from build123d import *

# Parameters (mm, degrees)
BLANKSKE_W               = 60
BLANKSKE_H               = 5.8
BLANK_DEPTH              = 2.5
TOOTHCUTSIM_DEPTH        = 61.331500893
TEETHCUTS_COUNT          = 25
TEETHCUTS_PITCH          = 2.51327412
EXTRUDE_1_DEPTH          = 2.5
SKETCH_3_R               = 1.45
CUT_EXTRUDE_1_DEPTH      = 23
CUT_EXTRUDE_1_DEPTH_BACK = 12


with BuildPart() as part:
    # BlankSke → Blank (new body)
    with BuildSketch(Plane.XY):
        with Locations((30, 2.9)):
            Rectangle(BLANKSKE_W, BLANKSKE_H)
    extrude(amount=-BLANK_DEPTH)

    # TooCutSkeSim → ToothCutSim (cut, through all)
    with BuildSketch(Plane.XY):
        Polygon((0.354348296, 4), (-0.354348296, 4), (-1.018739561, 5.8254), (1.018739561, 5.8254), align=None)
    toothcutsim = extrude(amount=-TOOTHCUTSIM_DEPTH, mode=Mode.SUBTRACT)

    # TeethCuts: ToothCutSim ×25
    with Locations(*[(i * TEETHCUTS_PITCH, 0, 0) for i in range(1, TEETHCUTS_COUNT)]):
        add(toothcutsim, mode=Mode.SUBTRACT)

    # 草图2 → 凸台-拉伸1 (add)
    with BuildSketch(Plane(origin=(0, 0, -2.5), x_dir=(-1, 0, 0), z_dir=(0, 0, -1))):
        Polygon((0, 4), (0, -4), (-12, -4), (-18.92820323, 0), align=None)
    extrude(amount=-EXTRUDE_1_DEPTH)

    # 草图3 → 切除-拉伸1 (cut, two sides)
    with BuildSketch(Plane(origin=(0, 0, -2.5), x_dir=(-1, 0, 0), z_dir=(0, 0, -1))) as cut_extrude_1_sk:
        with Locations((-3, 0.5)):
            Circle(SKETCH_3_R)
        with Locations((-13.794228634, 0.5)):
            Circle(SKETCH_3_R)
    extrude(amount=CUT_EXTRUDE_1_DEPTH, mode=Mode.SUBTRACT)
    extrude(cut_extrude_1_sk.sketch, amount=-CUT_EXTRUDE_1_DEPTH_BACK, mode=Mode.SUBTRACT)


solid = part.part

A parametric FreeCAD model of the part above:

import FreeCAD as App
import Part
import Sketcher
from FreeCAD import Vector
Q = App.Units.Quantity

doc = App.newDocument("Part")
params = doc.addObject("Spreadsheet::Sheet", "Params")
for row, (alias, value) in enumerate([
    ("sketch1_width", "60 mm"),
    ("sketch1_height", "5.8 mm"),
    ("pad1_length", "2.5 mm"),
    ("linearpattern_pitch", "2.513274 mm"),
    ("sketch3_width", "12 mm"),
    ("sketch3_height", "8 mm"),
    ("pad2_length", "2.5 mm"),
    ("sketch4_diameter", "2.9 mm"),
], start=1):
    params.set(f"A{row}", alias)
    params.set(f"B{row}", "=" + value)
    params.setAlias(f"B{row}", alias)

body = doc.addObject("PartDesign::Body", "Body")

sketch1 = body.newObject("Sketcher::SketchObject", "Sketch")
sketch1.AttachmentSupport = (doc.getObject("XY_Plane"), [""])
sketch1.MapMode = "FlatFace"
sketch1.addGeometry(Part.LineSegment(Vector(0, 6, 0), Vector(0, 0, 0)), False)
sketch1.addGeometry(Part.LineSegment(Vector(0, 0, 0), Vector(60, 0, 0)), False)
sketch1.addGeometry(Part.LineSegment(Vector(60, 0, 0), Vector(60, 6, 0)), False)
sketch1.addGeometry(Part.LineSegment(Vector(60, 6, 0), Vector(0, 6, 0)), False)
sketch1.addConstraint(Sketcher.Constraint("Coincident", 0, 2, 1, 1))
sketch1.addConstraint(Sketcher.Constraint("Coincident", 1, 2, 2, 1))
sketch1.addConstraint(Sketcher.Constraint("Coincident", 2, 2, 3, 1))
sketch1.addConstraint(Sketcher.Constraint("Coincident", 3, 2, 0, 1))
sketch1.addConstraint(Sketcher.Constraint("Vertical", 0))
sketch1.addConstraint(Sketcher.Constraint("Horizontal", 1))
sketch1.addConstraint(Sketcher.Constraint("Vertical", 2))
sketch1.addConstraint(Sketcher.Constraint("Horizontal", 3))
sketch1.addConstraint(Sketcher.Constraint("Coincident", 0, 2, -1, 1))
sketch1.addConstraint(Sketcher.Constraint("DistanceX", 1, 1, 1, 2, 60.0))
sketch1.addConstraint(Sketcher.Constraint("DistanceY", 0, 2, 0, 1, 5.8))
sketch1.setExpression("Constraints[9]", "Params.sketch1_width")
sketch1.setExpression("Constraints[10]", "Params.sketch1_height")
pad1 = body.newObject("PartDesign::Pad", "Pad")
pad1.Profile = sketch1
pad1.setExpression("Length", "Params.pad1_length")
pad1.Reversed = True

sketch2 = body.newObject("Sketcher::SketchObject", "Sketch001")
sketch2.AttachmentSupport = (doc.getObject("XY_Plane"), [""])
sketch2.MapMode = "FlatFace"
sketch2.addGeometry(Part.LineSegment(Vector(-0.4, 4, 0), Vector(0.4, 4, 0)), False)
sketch2.addGeometry(Part.LineSegment(Vector(0.4, 4, 0), Vector(1, 5.8, 0)), False)
sketch2.addGeometry(Part.LineSegment(Vector(1, 5.8, 0), Vector(-1, 5.8, 0)), False)
sketch2.addGeometry(Part.LineSegment(Vector(-1, 5.8, 0), Vector(-0.4, 4, 0)), False)
sketch2.addConstraint(Sketcher.Constraint("Coincident", 0, 2, 1, 1))
sketch2.addConstraint(Sketcher.Constraint("Coincident", 1, 2, 2, 1))
sketch2.addConstraint(Sketcher.Constraint("Coincident", 2, 2, 3, 1))
sketch2.addConstraint(Sketcher.Constraint("Coincident", 3, 2, 0, 1))
sketch2.addConstraint(Sketcher.Constraint("Horizontal", 0))
sketch2.addConstraint(Sketcher.Constraint("Horizontal", 2))
sketch2.addConstraint(Sketcher.Constraint("Equal", 1, 3))
sketch2.addConstraint(Sketcher.Constraint("Angle", 1, Q("70 deg")))
sketch2.addConstraint(Sketcher.Constraint("DistanceY", -1, 1, 0, 2, 4.0))
sketch2.addConstraint(Sketcher.Constraint("DistanceX", 2, 2, 2, 1, 2.037479))
sketch2.addConstraint(Sketcher.Constraint("DistanceY", -1, 1, 1, 2, 5.8254))
sketch2.addConstraint(Sketcher.Constraint("DistanceX", -1, 1, 0, 2, 0.354348))
pocket1 = body.newObject("PartDesign::Pocket", "Pocket")
pocket1.Profile = sketch2
pocket1.Type = "ThroughAll"
doc.recompute()

linearpattern = body.newObject("PartDesign::LinearPattern", "LinearPattern")
linearpattern.Originals = [pocket1]
linearpattern.Direction = (doc.getObject("X_Axis"), [""])
linearpattern.Mode = "offset"
linearpattern.setExpression("Offset", "Params.linearpattern_pitch")
linearpattern.Occurrences = 25
body.Tip = linearpattern

sketch3 = body.newObject("Sketcher::SketchObject", "Sketch002")
sketch3.AttachmentSupport = (doc.getObject("XY_Plane"), [""])
sketch3.MapMode = "FlatFace"
sketch3.AttachmentOffset = App.Placement(Vector(0, 0, -2.5), App.Rotation())
sketch3.addGeometry(Part.LineSegment(Vector(0, -4, 0), Vector(0, 4, 0)), False)
sketch3.addGeometry(Part.LineSegment(Vector(0, 4, 0), Vector(19, 0, 0)), False)
sketch3.addGeometry(Part.LineSegment(Vector(19, 0, 0), Vector(12, -4, 0)), False)
sketch3.addGeometry(Part.LineSegment(Vector(12, -4, 0), Vector(0, -4, 0)), False)
sketch3.addConstraint(Sketcher.Constraint("Coincident", 0, 2, 1, 1))
sketch3.addConstraint(Sketcher.Constraint("Coincident", 1, 2, 2, 1))
sketch3.addConstraint(Sketcher.Constraint("Coincident", 2, 2, 3, 1))
sketch3.addConstraint(Sketcher.Constraint("Coincident", 3, 2, 0, 1))
sketch3.addConstraint(Sketcher.Constraint("Vertical", 0))
sketch3.addConstraint(Sketcher.Constraint("Horizontal", 3))
sketch3.addConstraint(Sketcher.Constraint("Symmetric", 0, 2, 3, 2, -1, 1))
sketch3.addConstraint(Sketcher.Constraint("PointOnObject", 1, 2, -1))
sketch3.addConstraint(Sketcher.Constraint("DistanceX", 3, 2, 3, 1, 12.0))
sketch3.addConstraint(Sketcher.Constraint("DistanceY", 0, 1, 0, 2, 8.0))
sketch3.addConstraint(Sketcher.Constraint("Angle", 2, Q("-150 deg")))
sketch3.setExpression("Constraints[8]", "Params.sketch3_width")
sketch3.setExpression("Constraints[9]", "Params.sketch3_height")
pad2 = body.newObject("PartDesign::Pad", "Pad001")
pad2.Profile = sketch3
pad2.setExpression("Length", "Params.pad2_length")

sketch4 = body.newObject("Sketcher::SketchObject", "Sketch003")
sketch4.AttachmentSupport = (doc.getObject("XY_Plane"), [""])
sketch4.MapMode = "FlatFace"
sketch4.AttachmentOffset = App.Placement(Vector(0, 0, -2.5), App.Rotation())
sketch4.addGeometry(Part.Circle(Vector(3, 0.5, 0), Vector(0, 0, 1), 1.4), False)
sketch4.addGeometry(Part.Circle(Vector(13.8, 0.5, 0), Vector(0, 0, 1), 1.4), False)
sketch4.addConstraint(Sketcher.Constraint("Equal", 0, 1))
sketch4.addConstraint(Sketcher.Constraint("Horizontal", 0, 3, 1, 3))
sketch4.addConstraint(Sketcher.Constraint("Diameter", 0, 2.9))
sketch4.addConstraint(Sketcher.Constraint("DistanceX", -1, 1, 0, 3, 3.0))
sketch4.addConstraint(Sketcher.Constraint("DistanceY", -1, 1, 0, 3, 0.5))
sketch4.addConstraint(Sketcher.Constraint("DistanceX", -1, 1, 1, 3, 13.794229))
sketch4.setExpression("Constraints[2]", "Params.sketch4_diameter")
pocket2 = body.newObject("PartDesign::Pocket", "Pocket001")
pocket2.Profile = sketch4
pocket2.Type = "ThroughAll"
pocket2.Midplane = True

doc.recompute()
